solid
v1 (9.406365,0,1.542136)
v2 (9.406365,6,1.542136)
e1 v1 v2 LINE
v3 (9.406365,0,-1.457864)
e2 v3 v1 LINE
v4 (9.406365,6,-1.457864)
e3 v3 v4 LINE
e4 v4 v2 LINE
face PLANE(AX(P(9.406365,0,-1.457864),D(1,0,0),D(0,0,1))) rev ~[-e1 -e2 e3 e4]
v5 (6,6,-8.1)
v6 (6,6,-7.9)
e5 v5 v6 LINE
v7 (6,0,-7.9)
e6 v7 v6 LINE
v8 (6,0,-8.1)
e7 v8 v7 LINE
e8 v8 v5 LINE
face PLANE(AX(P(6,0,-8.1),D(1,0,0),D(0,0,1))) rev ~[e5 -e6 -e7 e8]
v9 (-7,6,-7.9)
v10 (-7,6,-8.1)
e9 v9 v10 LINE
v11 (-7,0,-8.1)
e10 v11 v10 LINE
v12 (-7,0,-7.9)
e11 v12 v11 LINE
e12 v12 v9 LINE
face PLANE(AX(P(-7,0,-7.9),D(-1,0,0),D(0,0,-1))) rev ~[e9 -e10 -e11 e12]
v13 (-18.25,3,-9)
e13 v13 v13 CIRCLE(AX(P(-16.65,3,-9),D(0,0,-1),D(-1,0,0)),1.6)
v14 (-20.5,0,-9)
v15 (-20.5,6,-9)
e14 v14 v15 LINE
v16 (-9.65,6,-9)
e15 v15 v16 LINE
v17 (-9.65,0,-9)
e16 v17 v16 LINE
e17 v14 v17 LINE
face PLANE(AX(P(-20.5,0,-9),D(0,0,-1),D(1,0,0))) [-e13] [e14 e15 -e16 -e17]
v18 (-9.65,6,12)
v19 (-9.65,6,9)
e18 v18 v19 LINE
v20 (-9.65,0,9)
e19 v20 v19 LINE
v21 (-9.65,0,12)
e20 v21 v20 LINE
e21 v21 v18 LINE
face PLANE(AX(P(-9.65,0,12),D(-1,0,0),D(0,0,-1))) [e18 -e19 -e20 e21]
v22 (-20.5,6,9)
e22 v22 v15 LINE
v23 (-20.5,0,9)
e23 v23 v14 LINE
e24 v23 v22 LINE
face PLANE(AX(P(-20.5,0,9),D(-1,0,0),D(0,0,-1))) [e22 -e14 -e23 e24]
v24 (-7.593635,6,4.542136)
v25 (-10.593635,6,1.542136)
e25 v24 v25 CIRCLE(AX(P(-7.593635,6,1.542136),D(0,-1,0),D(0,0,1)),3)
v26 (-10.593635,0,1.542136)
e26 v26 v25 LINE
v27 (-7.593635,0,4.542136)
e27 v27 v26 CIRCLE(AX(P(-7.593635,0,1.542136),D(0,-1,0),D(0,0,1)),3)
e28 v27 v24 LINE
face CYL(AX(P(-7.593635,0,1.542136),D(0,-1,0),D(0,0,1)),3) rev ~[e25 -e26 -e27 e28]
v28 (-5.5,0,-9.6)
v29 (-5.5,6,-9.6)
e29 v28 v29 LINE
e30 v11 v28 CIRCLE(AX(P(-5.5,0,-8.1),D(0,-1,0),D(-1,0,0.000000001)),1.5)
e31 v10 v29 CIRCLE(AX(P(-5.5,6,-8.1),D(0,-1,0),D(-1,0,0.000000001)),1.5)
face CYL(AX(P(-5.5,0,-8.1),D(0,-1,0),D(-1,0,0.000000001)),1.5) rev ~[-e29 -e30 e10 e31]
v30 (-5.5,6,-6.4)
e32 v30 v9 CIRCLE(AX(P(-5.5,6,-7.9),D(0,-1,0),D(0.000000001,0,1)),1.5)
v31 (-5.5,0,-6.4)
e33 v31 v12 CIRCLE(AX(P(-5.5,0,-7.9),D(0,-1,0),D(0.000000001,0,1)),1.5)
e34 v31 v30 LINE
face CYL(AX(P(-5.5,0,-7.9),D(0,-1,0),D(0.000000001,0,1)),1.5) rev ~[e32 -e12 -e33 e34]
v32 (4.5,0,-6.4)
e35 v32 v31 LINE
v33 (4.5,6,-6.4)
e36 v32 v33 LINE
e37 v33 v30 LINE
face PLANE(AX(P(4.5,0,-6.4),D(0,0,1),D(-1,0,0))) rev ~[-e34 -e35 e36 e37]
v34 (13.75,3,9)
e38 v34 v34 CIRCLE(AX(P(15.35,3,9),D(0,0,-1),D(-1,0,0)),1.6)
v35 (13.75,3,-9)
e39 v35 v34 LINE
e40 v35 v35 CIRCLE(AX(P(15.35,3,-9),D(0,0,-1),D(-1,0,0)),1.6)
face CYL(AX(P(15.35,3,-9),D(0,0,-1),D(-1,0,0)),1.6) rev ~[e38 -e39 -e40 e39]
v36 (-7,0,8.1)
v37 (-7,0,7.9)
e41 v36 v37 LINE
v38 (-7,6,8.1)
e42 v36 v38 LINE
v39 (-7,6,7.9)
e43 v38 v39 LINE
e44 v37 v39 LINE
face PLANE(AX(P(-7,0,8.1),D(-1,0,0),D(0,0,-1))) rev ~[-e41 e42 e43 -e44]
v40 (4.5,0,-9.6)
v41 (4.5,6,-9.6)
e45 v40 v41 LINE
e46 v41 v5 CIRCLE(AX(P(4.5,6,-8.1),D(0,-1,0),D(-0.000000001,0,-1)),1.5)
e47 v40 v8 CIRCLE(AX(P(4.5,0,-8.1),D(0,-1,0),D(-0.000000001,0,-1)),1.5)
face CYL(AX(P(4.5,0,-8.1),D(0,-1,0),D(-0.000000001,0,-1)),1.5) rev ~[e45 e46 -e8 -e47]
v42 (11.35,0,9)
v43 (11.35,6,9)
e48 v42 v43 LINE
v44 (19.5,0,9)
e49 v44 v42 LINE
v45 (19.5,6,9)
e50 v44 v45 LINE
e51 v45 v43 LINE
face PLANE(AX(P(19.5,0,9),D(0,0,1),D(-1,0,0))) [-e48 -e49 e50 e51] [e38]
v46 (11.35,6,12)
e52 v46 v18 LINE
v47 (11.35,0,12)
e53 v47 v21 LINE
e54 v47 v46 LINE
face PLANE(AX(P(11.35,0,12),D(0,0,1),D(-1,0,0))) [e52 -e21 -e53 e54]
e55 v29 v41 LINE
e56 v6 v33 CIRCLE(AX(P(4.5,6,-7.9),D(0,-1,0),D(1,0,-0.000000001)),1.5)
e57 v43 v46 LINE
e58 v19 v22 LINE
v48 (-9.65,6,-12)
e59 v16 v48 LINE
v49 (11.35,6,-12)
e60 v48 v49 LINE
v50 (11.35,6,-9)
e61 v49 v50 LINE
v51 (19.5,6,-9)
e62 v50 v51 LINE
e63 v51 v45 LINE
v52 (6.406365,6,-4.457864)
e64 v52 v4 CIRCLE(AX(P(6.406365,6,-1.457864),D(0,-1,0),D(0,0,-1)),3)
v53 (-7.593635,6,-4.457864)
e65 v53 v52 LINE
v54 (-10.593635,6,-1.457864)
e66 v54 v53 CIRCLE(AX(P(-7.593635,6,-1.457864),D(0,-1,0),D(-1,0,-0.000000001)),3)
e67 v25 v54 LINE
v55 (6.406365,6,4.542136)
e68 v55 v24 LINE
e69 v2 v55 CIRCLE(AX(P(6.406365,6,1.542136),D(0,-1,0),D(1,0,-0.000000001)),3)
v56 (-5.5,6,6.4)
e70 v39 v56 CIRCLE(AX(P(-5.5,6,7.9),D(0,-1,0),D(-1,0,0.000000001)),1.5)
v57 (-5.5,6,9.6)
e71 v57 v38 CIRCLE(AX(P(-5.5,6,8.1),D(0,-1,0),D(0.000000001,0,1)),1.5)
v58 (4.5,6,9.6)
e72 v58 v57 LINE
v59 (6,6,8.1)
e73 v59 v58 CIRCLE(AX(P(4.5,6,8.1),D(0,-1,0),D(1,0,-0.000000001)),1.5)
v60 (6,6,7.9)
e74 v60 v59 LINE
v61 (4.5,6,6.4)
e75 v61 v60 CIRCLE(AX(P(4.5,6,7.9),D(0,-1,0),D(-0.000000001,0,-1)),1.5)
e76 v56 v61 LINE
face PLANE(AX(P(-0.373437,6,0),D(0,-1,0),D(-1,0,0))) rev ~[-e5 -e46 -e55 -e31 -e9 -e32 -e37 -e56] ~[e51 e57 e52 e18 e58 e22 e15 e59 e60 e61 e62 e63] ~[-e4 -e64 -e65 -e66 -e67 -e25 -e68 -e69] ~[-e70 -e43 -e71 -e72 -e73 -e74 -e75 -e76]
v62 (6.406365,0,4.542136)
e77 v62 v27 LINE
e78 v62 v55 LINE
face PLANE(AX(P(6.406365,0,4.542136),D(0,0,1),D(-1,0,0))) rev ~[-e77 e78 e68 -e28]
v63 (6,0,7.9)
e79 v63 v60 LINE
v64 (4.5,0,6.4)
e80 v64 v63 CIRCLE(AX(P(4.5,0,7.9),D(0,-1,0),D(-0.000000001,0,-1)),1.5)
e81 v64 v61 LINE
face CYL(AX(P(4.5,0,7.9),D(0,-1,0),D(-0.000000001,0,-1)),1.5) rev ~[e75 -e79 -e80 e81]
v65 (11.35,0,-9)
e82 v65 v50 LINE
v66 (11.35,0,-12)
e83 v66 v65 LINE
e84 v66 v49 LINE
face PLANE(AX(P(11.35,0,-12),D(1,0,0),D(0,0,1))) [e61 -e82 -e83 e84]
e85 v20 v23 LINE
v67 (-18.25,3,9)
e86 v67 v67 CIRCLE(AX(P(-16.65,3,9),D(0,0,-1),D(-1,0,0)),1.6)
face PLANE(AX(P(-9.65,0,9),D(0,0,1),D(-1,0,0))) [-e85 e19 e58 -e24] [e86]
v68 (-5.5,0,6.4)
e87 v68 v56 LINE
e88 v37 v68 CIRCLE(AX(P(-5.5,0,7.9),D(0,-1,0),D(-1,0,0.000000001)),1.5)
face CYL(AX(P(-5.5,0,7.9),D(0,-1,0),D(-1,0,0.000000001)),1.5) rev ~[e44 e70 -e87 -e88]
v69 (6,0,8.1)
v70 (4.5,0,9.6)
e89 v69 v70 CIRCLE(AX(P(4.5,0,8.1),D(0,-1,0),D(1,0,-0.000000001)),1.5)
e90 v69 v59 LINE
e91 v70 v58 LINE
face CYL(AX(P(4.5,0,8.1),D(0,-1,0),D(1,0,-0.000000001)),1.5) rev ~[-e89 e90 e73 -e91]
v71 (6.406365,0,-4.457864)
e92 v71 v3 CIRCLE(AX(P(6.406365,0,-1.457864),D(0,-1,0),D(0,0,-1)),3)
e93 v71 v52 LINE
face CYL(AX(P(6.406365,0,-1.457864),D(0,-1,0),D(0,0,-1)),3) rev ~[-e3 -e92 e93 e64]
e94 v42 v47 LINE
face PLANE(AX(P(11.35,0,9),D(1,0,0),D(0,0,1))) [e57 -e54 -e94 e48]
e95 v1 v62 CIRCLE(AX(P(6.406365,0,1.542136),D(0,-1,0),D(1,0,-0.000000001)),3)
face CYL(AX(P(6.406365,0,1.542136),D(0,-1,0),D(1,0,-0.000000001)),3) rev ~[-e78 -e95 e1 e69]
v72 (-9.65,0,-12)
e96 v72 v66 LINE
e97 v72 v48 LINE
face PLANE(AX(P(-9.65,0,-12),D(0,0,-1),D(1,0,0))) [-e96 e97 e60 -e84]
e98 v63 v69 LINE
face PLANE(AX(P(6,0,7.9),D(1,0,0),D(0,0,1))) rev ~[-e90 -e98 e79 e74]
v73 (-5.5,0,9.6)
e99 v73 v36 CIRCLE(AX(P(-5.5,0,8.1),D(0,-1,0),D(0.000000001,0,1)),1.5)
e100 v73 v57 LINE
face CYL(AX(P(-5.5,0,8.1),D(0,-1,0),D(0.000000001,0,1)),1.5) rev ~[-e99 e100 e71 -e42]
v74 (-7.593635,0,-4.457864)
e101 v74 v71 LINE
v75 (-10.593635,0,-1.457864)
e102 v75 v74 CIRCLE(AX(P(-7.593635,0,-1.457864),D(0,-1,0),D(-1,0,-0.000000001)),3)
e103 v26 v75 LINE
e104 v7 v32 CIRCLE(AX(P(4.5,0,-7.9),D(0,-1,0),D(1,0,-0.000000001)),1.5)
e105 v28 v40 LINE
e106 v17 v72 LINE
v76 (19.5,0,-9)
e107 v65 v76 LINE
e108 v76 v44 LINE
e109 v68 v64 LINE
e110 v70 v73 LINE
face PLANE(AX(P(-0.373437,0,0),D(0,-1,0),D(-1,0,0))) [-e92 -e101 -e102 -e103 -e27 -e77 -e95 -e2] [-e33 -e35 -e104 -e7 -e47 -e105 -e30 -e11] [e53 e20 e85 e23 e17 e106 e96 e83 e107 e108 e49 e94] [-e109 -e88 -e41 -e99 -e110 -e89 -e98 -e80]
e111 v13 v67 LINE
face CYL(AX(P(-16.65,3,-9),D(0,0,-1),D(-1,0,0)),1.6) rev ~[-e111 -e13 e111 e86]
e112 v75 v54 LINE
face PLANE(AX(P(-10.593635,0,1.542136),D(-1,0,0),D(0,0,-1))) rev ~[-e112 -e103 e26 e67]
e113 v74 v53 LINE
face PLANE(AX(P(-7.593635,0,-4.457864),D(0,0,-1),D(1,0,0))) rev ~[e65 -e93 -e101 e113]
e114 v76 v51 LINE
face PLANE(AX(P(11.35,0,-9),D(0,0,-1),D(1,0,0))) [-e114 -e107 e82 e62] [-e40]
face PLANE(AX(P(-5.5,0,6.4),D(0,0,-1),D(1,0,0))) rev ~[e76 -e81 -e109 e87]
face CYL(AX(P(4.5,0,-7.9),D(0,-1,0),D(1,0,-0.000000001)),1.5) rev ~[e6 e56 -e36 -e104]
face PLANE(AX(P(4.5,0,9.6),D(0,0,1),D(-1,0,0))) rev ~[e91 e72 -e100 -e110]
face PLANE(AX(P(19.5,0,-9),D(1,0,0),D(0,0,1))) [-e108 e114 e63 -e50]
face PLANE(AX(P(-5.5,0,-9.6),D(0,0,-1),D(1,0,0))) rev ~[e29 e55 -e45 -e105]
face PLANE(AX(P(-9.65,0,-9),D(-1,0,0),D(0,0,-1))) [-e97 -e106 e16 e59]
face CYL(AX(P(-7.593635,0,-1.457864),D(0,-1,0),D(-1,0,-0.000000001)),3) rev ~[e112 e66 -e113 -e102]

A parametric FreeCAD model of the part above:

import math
import FreeCAD as App
import Part
import Sketcher

V = App.Vector

doc = App.newDocument("Part")
body = doc.addObject("PartDesign::Body", "Body")

# Sketch on XZ plane
sketch1 = body.newObject("Sketcher::SketchObject", "Sketch")
sketch1.AttachmentSupport = (doc.getObject("XZ_Plane"), [""])
sketch1.MapMode = "FlatFace"
sketch1.addGeometry([
    Part.LineSegment(V(-9.65, -12, 0), V(-9.65, -9, 0)),  # 0
    Part.LineSegment(V(-9.65, -9, 0), V(-20.5, -9, 0)),  # 1
    Part.LineSegment(V(-20.5, -9, 0), V(-20.5, 9, 0)),  # 2
    Part.LineSegment(V(-20.5, 9, 0), V(-9.65, 9, 0)),  # 3
    Part.LineSegment(V(-9.65, 9, 0), V(-9.65, 12, 0)),  # 4
    Part.LineSegment(V(-9.65, 12, 0), V(11.35, 12, 0)),  # 5
    Part.LineSegment(V(11.35, 12, 0), V(11.35, 9, 0)),  # 6
    Part.LineSegment(V(11.35, 9, 0), V(19.5, 9, 0)),  # 7
    Part.LineSegment(V(19.5, 9, 0), V(19.5, -9, 0)),  # 8
    Part.LineSegment(V(19.5, -9, 0), V(11.35, -9, 0)),  # 9
    Part.LineSegment(V(11.35, -9, 0), V(11.35, -12, 0)),  # 10
    Part.LineSegment(V(11.35, -12, 0), V(-9.65, -12, 0)),  # 11
    Part.LineSegment(V(4.5, 9.6, 0), V(-5.5, 9.6, 0)),  # 12
    Part.ArcOfCircle(Part.Circle(V(-5.5, 8.1, 0), V(0, 0, 1), 1.5), math.radians(90), math.radians(180)),  # 13
    Part.LineSegment(V(-7, 8.1, 0), V(-7, 7.9, 0)),  # 14
    Part.ArcOfCircle(Part.Circle(V(-5.5, 7.9, 0), V(0, 0, 1), 1.5), math.radians(180), math.radians(270)),  # 15
    Part.LineSegment(V(-5.5, 6.4, 0), V(4.5, 6.4, 0)),  # 16
    Part.ArcOfCircle(Part.Circle(V(4.5, 7.9, 0), V(0, 0, 1), 1.5), math.radians(-90), math.radians(0)),  # 17
    Part.LineSegment(V(6, 7.9, 0), V(6, 8.1, 0)),  # 18
    Part.ArcOfCircle(Part.Circle(V(4.5, 8.1, 0), V(0, 0, 1), 1.5), math.radians(0), math.radians(90)),  # 19
    Part.LineSegment(V(6.41, 4.54, 0), V(-7.59, 4.54, 0)),  # 20
    Part.ArcOfCircle(Part.Circle(V(-7.59, 1.54, 0), V(0, 0, 1), 3), math.radians(90), math.radians(180)),  # 21
    Part.LineSegment(V(-10.59, 1.54, 0), V(-10.59, -1.46, 0)),  # 22
    Part.ArcOfCircle(Part.Circle(V(-7.59, -1.46, 0), V(0, 0, 1), 3), math.radians(-180), math.radians(-90)),  # 23
    Part.LineSegment(V(-7.59, -4.46, 0), V(6.41, -4.46, 0)),  # 24
    Part.ArcOfCircle(Part.Circle(V(6.41, -1.46, 0), V(0, 0, 1), 3), math.radians(-90), math.radians(0)),  # 25
    Part.LineSegment(V(9.41, -1.46, 0), V(9.41, 1.54, 0)),  # 26
    Part.ArcOfCircle(Part.Circle(V(6.41, 1.54, 0), V(0, 0, 1), 3), math.radians(0), math.radians(90)),  # 27
    Part.LineSegment(V(4.5, -6.4, 0), V(-5.5, -6.4, 0)),  # 28
    Part.ArcOfCircle(Part.Circle(V(-5.5, -7.9, 0), V(0, 0, 1), 1.5), math.radians(90), math.radians(180)),  # 29
    Part.LineSegment(V(-7, -7.9, 0), V(-7, -8.1, 0)),  # 30
    Part.ArcOfCircle(Part.Circle(V(-5.5, -8.1, 0), V(0, 0, 1), 1.5), math.radians(180), math.radians(270)),  # 31
    Part.LineSegment(V(-5.5, -9.6, 0), V(4.5, -9.6, 0)),  # 32
    Part.ArcOfCircle(Part.Circle(V(4.5, -8.1, 0), V(0, 0, 1), 1.5), math.radians(-90), math.radians(0)),  # 33
    Part.LineSegment(V(6, -8.1, 0), V(6, -7.9, 0)),  # 34
    Part.ArcOfCircle(Part.Circle(V(4.5, -7.9, 0), V(0, 0, 1), 1.5), math.radians(0), math.radians(90)),  # 35
], False)
sketch1.addConstraint([
    Sketcher.Constraint("Coincident", 0, 2, 1, 1),
    Sketcher.Constraint("Coincident", 1, 2, 2, 1),
    Sketcher.Constraint("Coincident", 2, 2, 3, 1),
    Sketcher.Constraint("Coincident", 3, 2, 4, 1),
    Sketcher.Constraint("Coincident", 4, 2, 5, 1),
    Sketcher.Constraint("Coincident", 5, 2, 6, 1),
    Sketcher.Constraint("Coincident", 6, 2, 7, 1),
    Sketcher.Constraint("Coincident", 7, 2, 8, 1),
    Sketcher.Constraint("Coincident", 8, 2, 9, 1),
    Sketcher.Constraint("Coincident", 9, 2, 10, 1),
    Sketcher.Constraint("Coincident", 10, 2, 11, 1),
    Sketcher.Constraint("Coincident", 11, 2, 0, 1),
    Sketcher.Constraint("Tangent", 12, 2, 13, 1),
    Sketcher.Constraint("Tangent", 13, 2, 14, 1),
    Sketcher.Constraint("Tangent", 14, 2, 15, 1),
    Sketcher.Constraint("Tangent", 15, 2, 16, 1),
    Sketcher.Constraint("Tangent", 16, 2, 17, 1),
    Sketcher.Constraint("Tangent", 17, 2, 18, 1),
    Sketcher.Constraint("Tangent", 18, 2, 19, 1),
    Sketcher.Constraint("Tangent", 19, 2, 12, 1),
    Sketcher.Constraint("Tangent", 20, 2, 21, 1),
    Sketcher.Constraint("Tangent", 21, 2, 22, 1),
    Sketcher.Constraint("Tangent", 22, 2, 23, 1),
    Sketcher.Constraint("Tangent", 23, 2, 24, 1),
    Sketcher.Constraint("Tangent", 24, 2, 25, 1),
    Sketcher.Constraint("Tangent", 25, 2, 26, 1),
    Sketcher.Constraint("Tangent", 26, 2, 27, 1),
    Sketcher.Constraint("Tangent", 27, 2, 20, 1),
    Sketcher.Constraint("Tangent", 28, 2, 29, 1),
    Sketcher.Constraint("Tangent", 29, 2, 30, 1),
    Sketcher.Constraint("Tangent", 30, 2, 31, 1),
    Sketcher.Constraint("Tangent", 31, 2, 32, 1),
    Sketcher.Constraint("Tangent", 32, 2, 33, 1),
    Sketcher.Constraint("Tangent", 33, 2, 34, 1),
    Sketcher.Constraint("Tangent", 34, 2, 35, 1),
    Sketcher.Constraint("Tangent", 35, 2, 28, 1),
    Sketcher.Constraint("Vertical", 0),
    Sketcher.Constraint("Horizontal", 1),
    Sketcher.Constraint("Vertical", 2),
    Sketcher.Constraint("Horizontal", 3),
    Sketcher.Constraint("Vertical", 4),
    Sketcher.Constraint("Horizontal", 5),
    Sketcher.Constraint("Vertical", 6),
    Sketcher.Constraint("Horizontal", 7),
    Sketcher.Constraint("Vertical", 8),
    Sketcher.Constraint("Horizontal", 9),
    Sketcher.Constraint("Vertical", 10),
    Sketcher.Constraint("Horizontal", 11),
    Sketcher.Constraint("Horizontal", 12),
    Sketcher.Constraint("Vertical", 14),
    Sketcher.Constraint("Horizontal", 16),
    Sketcher.Constraint("Vertical", 18),
    Sketcher.Constraint("Horizontal", 20),
    Sketcher.Constraint("Vertical", 22),
    Sketcher.Constraint("Horizontal", 24),
    Sketcher.Constraint("Vertical", 26),
    Sketcher.Constraint("Horizontal", 28),
    Sketcher.Constraint("Vertical", 30),
    Sketcher.Constraint("Horizontal", 32),
    Sketcher.Constraint("Vertical", 34),
    Sketcher.Constraint("Equal", 13, 15),
    Sketcher.Constraint("Equal", 15, 17),
    Sketcher.Constraint("Equal", 17, 19),
    Sketcher.Constraint("Equal", 21, 23),
    Sketcher.Constraint("Equal", 23, 25),
    Sketcher.Constraint("Equal", 25, 27),
    Sketcher.Constraint("Equal", 19, 29),
    Sketcher.Constraint("Equal", 29, 31),
    Sketcher.Constraint("Equal", 31, 33),
    Sketcher.Constraint("Equal", 33, 35),
    Sketcher.Constraint("Symmetric", 15, 3, 29, 3, -1),
    Sketcher.Constraint("Symmetric", 19, 3, 33, 3, -1),
    Sketcher.Constraint("Symmetric", 0, 2, 3, 2, -1),
    Sketcher.Constraint("Symmetric", 6, 2, 9, 2, -1),
    Sketcher.Constraint("Horizontal", 3, 2, 6, 2),
    Sketcher.Constraint("Equal", 0, 4),
    Sketcher.Constraint("Equal", 10, 22),
    Sketcher.Constraint("Radius", 21, 3.0),
    Sketcher.Constraint("Radius", 13, 1.5),
    Sketcher.Constraint("DistanceX", 5, 1, 5, 2, 21.0),
    Sketcher.Constraint("DistanceX", 12, 2, 12, 1, 10.0),
    Sketcher.Constraint("DistanceX", 20, 2, 20, 1, 14.0),
    Sketcher.Constraint("DistanceY", 0, 1, 0, 2, 3.0),
    Sketcher.Constraint("DistanceY", 2, 1, 2, 2, 18.0),
    Sketcher.Constraint("DistanceY", 14, 2, 14, 1, 0.2),
    Sketcher.Constraint("DistanceX", 13, 2, -1, 1, 7.0),
    Sketcher.Constraint("DistanceX", 1, 2, 31, 3, 15.0),
    Sketcher.Constraint("DistanceX", 19, 3, 7, 2, 15.0),
    Sketcher.Constraint("DistanceX", 1, 2, 1, 1, 10.85),
    Sketcher.Constraint("DistanceY", -1, 1, 13, 3, 8.1),
    Sketcher.Constraint("DistanceX", 21, 3, -1, 1, 7.593635),
    Sketcher.Constraint("DistanceY", -1, 1, 21, 3, 1.542136),
])
pad1 = body.newObject("PartDesign::Pad", "Pad")
pad1.Profile = sketch1
pad1.Length = 6
pad1.Reversed = True

# Sketch on XY plane
sketch2 = body.newObject("Sketcher::SketchObject", "Sketch001")
sketch2.AttachmentSupport = (doc.getObject("XY_Plane"), [""])
sketch2.MapMode = "FlatFace"
sketch2.AttachmentOffset = App.Placement(V(0, 0, -9), App.Rotation())
sketch2.addGeometry([
    Part.Circle(V(15.3, 3, 0), V(0, 0, 1), 1.6),
    Part.Circle(V(-16.6, 3, 0), V(0, 0, 1), 1.6),
], False)
sketch2.addConstraint([
    Sketcher.Constraint("Equal", 0, 1),
    Sketcher.Constraint("Horizontal", 0, 3, 1, 3),
    Sketcher.Constraint("Diameter", 0, 3.2),
    Sketcher.Constraint("DistanceY", -1, 1, 0, 3, 3.0),
    Sketcher.Constraint("DistanceX", 1, 3, 0, 3, 32.0),
    Sketcher.Constraint("DistanceX", -1, 1, 0, 3, 15.35),
])
pocket1 = body.newObject("PartDesign::Pocket", "Pocket")
pocket1.Profile = sketch2
pocket1.Type = "ThroughAll"
pocket1.Reversed = True

doc.recompute()
